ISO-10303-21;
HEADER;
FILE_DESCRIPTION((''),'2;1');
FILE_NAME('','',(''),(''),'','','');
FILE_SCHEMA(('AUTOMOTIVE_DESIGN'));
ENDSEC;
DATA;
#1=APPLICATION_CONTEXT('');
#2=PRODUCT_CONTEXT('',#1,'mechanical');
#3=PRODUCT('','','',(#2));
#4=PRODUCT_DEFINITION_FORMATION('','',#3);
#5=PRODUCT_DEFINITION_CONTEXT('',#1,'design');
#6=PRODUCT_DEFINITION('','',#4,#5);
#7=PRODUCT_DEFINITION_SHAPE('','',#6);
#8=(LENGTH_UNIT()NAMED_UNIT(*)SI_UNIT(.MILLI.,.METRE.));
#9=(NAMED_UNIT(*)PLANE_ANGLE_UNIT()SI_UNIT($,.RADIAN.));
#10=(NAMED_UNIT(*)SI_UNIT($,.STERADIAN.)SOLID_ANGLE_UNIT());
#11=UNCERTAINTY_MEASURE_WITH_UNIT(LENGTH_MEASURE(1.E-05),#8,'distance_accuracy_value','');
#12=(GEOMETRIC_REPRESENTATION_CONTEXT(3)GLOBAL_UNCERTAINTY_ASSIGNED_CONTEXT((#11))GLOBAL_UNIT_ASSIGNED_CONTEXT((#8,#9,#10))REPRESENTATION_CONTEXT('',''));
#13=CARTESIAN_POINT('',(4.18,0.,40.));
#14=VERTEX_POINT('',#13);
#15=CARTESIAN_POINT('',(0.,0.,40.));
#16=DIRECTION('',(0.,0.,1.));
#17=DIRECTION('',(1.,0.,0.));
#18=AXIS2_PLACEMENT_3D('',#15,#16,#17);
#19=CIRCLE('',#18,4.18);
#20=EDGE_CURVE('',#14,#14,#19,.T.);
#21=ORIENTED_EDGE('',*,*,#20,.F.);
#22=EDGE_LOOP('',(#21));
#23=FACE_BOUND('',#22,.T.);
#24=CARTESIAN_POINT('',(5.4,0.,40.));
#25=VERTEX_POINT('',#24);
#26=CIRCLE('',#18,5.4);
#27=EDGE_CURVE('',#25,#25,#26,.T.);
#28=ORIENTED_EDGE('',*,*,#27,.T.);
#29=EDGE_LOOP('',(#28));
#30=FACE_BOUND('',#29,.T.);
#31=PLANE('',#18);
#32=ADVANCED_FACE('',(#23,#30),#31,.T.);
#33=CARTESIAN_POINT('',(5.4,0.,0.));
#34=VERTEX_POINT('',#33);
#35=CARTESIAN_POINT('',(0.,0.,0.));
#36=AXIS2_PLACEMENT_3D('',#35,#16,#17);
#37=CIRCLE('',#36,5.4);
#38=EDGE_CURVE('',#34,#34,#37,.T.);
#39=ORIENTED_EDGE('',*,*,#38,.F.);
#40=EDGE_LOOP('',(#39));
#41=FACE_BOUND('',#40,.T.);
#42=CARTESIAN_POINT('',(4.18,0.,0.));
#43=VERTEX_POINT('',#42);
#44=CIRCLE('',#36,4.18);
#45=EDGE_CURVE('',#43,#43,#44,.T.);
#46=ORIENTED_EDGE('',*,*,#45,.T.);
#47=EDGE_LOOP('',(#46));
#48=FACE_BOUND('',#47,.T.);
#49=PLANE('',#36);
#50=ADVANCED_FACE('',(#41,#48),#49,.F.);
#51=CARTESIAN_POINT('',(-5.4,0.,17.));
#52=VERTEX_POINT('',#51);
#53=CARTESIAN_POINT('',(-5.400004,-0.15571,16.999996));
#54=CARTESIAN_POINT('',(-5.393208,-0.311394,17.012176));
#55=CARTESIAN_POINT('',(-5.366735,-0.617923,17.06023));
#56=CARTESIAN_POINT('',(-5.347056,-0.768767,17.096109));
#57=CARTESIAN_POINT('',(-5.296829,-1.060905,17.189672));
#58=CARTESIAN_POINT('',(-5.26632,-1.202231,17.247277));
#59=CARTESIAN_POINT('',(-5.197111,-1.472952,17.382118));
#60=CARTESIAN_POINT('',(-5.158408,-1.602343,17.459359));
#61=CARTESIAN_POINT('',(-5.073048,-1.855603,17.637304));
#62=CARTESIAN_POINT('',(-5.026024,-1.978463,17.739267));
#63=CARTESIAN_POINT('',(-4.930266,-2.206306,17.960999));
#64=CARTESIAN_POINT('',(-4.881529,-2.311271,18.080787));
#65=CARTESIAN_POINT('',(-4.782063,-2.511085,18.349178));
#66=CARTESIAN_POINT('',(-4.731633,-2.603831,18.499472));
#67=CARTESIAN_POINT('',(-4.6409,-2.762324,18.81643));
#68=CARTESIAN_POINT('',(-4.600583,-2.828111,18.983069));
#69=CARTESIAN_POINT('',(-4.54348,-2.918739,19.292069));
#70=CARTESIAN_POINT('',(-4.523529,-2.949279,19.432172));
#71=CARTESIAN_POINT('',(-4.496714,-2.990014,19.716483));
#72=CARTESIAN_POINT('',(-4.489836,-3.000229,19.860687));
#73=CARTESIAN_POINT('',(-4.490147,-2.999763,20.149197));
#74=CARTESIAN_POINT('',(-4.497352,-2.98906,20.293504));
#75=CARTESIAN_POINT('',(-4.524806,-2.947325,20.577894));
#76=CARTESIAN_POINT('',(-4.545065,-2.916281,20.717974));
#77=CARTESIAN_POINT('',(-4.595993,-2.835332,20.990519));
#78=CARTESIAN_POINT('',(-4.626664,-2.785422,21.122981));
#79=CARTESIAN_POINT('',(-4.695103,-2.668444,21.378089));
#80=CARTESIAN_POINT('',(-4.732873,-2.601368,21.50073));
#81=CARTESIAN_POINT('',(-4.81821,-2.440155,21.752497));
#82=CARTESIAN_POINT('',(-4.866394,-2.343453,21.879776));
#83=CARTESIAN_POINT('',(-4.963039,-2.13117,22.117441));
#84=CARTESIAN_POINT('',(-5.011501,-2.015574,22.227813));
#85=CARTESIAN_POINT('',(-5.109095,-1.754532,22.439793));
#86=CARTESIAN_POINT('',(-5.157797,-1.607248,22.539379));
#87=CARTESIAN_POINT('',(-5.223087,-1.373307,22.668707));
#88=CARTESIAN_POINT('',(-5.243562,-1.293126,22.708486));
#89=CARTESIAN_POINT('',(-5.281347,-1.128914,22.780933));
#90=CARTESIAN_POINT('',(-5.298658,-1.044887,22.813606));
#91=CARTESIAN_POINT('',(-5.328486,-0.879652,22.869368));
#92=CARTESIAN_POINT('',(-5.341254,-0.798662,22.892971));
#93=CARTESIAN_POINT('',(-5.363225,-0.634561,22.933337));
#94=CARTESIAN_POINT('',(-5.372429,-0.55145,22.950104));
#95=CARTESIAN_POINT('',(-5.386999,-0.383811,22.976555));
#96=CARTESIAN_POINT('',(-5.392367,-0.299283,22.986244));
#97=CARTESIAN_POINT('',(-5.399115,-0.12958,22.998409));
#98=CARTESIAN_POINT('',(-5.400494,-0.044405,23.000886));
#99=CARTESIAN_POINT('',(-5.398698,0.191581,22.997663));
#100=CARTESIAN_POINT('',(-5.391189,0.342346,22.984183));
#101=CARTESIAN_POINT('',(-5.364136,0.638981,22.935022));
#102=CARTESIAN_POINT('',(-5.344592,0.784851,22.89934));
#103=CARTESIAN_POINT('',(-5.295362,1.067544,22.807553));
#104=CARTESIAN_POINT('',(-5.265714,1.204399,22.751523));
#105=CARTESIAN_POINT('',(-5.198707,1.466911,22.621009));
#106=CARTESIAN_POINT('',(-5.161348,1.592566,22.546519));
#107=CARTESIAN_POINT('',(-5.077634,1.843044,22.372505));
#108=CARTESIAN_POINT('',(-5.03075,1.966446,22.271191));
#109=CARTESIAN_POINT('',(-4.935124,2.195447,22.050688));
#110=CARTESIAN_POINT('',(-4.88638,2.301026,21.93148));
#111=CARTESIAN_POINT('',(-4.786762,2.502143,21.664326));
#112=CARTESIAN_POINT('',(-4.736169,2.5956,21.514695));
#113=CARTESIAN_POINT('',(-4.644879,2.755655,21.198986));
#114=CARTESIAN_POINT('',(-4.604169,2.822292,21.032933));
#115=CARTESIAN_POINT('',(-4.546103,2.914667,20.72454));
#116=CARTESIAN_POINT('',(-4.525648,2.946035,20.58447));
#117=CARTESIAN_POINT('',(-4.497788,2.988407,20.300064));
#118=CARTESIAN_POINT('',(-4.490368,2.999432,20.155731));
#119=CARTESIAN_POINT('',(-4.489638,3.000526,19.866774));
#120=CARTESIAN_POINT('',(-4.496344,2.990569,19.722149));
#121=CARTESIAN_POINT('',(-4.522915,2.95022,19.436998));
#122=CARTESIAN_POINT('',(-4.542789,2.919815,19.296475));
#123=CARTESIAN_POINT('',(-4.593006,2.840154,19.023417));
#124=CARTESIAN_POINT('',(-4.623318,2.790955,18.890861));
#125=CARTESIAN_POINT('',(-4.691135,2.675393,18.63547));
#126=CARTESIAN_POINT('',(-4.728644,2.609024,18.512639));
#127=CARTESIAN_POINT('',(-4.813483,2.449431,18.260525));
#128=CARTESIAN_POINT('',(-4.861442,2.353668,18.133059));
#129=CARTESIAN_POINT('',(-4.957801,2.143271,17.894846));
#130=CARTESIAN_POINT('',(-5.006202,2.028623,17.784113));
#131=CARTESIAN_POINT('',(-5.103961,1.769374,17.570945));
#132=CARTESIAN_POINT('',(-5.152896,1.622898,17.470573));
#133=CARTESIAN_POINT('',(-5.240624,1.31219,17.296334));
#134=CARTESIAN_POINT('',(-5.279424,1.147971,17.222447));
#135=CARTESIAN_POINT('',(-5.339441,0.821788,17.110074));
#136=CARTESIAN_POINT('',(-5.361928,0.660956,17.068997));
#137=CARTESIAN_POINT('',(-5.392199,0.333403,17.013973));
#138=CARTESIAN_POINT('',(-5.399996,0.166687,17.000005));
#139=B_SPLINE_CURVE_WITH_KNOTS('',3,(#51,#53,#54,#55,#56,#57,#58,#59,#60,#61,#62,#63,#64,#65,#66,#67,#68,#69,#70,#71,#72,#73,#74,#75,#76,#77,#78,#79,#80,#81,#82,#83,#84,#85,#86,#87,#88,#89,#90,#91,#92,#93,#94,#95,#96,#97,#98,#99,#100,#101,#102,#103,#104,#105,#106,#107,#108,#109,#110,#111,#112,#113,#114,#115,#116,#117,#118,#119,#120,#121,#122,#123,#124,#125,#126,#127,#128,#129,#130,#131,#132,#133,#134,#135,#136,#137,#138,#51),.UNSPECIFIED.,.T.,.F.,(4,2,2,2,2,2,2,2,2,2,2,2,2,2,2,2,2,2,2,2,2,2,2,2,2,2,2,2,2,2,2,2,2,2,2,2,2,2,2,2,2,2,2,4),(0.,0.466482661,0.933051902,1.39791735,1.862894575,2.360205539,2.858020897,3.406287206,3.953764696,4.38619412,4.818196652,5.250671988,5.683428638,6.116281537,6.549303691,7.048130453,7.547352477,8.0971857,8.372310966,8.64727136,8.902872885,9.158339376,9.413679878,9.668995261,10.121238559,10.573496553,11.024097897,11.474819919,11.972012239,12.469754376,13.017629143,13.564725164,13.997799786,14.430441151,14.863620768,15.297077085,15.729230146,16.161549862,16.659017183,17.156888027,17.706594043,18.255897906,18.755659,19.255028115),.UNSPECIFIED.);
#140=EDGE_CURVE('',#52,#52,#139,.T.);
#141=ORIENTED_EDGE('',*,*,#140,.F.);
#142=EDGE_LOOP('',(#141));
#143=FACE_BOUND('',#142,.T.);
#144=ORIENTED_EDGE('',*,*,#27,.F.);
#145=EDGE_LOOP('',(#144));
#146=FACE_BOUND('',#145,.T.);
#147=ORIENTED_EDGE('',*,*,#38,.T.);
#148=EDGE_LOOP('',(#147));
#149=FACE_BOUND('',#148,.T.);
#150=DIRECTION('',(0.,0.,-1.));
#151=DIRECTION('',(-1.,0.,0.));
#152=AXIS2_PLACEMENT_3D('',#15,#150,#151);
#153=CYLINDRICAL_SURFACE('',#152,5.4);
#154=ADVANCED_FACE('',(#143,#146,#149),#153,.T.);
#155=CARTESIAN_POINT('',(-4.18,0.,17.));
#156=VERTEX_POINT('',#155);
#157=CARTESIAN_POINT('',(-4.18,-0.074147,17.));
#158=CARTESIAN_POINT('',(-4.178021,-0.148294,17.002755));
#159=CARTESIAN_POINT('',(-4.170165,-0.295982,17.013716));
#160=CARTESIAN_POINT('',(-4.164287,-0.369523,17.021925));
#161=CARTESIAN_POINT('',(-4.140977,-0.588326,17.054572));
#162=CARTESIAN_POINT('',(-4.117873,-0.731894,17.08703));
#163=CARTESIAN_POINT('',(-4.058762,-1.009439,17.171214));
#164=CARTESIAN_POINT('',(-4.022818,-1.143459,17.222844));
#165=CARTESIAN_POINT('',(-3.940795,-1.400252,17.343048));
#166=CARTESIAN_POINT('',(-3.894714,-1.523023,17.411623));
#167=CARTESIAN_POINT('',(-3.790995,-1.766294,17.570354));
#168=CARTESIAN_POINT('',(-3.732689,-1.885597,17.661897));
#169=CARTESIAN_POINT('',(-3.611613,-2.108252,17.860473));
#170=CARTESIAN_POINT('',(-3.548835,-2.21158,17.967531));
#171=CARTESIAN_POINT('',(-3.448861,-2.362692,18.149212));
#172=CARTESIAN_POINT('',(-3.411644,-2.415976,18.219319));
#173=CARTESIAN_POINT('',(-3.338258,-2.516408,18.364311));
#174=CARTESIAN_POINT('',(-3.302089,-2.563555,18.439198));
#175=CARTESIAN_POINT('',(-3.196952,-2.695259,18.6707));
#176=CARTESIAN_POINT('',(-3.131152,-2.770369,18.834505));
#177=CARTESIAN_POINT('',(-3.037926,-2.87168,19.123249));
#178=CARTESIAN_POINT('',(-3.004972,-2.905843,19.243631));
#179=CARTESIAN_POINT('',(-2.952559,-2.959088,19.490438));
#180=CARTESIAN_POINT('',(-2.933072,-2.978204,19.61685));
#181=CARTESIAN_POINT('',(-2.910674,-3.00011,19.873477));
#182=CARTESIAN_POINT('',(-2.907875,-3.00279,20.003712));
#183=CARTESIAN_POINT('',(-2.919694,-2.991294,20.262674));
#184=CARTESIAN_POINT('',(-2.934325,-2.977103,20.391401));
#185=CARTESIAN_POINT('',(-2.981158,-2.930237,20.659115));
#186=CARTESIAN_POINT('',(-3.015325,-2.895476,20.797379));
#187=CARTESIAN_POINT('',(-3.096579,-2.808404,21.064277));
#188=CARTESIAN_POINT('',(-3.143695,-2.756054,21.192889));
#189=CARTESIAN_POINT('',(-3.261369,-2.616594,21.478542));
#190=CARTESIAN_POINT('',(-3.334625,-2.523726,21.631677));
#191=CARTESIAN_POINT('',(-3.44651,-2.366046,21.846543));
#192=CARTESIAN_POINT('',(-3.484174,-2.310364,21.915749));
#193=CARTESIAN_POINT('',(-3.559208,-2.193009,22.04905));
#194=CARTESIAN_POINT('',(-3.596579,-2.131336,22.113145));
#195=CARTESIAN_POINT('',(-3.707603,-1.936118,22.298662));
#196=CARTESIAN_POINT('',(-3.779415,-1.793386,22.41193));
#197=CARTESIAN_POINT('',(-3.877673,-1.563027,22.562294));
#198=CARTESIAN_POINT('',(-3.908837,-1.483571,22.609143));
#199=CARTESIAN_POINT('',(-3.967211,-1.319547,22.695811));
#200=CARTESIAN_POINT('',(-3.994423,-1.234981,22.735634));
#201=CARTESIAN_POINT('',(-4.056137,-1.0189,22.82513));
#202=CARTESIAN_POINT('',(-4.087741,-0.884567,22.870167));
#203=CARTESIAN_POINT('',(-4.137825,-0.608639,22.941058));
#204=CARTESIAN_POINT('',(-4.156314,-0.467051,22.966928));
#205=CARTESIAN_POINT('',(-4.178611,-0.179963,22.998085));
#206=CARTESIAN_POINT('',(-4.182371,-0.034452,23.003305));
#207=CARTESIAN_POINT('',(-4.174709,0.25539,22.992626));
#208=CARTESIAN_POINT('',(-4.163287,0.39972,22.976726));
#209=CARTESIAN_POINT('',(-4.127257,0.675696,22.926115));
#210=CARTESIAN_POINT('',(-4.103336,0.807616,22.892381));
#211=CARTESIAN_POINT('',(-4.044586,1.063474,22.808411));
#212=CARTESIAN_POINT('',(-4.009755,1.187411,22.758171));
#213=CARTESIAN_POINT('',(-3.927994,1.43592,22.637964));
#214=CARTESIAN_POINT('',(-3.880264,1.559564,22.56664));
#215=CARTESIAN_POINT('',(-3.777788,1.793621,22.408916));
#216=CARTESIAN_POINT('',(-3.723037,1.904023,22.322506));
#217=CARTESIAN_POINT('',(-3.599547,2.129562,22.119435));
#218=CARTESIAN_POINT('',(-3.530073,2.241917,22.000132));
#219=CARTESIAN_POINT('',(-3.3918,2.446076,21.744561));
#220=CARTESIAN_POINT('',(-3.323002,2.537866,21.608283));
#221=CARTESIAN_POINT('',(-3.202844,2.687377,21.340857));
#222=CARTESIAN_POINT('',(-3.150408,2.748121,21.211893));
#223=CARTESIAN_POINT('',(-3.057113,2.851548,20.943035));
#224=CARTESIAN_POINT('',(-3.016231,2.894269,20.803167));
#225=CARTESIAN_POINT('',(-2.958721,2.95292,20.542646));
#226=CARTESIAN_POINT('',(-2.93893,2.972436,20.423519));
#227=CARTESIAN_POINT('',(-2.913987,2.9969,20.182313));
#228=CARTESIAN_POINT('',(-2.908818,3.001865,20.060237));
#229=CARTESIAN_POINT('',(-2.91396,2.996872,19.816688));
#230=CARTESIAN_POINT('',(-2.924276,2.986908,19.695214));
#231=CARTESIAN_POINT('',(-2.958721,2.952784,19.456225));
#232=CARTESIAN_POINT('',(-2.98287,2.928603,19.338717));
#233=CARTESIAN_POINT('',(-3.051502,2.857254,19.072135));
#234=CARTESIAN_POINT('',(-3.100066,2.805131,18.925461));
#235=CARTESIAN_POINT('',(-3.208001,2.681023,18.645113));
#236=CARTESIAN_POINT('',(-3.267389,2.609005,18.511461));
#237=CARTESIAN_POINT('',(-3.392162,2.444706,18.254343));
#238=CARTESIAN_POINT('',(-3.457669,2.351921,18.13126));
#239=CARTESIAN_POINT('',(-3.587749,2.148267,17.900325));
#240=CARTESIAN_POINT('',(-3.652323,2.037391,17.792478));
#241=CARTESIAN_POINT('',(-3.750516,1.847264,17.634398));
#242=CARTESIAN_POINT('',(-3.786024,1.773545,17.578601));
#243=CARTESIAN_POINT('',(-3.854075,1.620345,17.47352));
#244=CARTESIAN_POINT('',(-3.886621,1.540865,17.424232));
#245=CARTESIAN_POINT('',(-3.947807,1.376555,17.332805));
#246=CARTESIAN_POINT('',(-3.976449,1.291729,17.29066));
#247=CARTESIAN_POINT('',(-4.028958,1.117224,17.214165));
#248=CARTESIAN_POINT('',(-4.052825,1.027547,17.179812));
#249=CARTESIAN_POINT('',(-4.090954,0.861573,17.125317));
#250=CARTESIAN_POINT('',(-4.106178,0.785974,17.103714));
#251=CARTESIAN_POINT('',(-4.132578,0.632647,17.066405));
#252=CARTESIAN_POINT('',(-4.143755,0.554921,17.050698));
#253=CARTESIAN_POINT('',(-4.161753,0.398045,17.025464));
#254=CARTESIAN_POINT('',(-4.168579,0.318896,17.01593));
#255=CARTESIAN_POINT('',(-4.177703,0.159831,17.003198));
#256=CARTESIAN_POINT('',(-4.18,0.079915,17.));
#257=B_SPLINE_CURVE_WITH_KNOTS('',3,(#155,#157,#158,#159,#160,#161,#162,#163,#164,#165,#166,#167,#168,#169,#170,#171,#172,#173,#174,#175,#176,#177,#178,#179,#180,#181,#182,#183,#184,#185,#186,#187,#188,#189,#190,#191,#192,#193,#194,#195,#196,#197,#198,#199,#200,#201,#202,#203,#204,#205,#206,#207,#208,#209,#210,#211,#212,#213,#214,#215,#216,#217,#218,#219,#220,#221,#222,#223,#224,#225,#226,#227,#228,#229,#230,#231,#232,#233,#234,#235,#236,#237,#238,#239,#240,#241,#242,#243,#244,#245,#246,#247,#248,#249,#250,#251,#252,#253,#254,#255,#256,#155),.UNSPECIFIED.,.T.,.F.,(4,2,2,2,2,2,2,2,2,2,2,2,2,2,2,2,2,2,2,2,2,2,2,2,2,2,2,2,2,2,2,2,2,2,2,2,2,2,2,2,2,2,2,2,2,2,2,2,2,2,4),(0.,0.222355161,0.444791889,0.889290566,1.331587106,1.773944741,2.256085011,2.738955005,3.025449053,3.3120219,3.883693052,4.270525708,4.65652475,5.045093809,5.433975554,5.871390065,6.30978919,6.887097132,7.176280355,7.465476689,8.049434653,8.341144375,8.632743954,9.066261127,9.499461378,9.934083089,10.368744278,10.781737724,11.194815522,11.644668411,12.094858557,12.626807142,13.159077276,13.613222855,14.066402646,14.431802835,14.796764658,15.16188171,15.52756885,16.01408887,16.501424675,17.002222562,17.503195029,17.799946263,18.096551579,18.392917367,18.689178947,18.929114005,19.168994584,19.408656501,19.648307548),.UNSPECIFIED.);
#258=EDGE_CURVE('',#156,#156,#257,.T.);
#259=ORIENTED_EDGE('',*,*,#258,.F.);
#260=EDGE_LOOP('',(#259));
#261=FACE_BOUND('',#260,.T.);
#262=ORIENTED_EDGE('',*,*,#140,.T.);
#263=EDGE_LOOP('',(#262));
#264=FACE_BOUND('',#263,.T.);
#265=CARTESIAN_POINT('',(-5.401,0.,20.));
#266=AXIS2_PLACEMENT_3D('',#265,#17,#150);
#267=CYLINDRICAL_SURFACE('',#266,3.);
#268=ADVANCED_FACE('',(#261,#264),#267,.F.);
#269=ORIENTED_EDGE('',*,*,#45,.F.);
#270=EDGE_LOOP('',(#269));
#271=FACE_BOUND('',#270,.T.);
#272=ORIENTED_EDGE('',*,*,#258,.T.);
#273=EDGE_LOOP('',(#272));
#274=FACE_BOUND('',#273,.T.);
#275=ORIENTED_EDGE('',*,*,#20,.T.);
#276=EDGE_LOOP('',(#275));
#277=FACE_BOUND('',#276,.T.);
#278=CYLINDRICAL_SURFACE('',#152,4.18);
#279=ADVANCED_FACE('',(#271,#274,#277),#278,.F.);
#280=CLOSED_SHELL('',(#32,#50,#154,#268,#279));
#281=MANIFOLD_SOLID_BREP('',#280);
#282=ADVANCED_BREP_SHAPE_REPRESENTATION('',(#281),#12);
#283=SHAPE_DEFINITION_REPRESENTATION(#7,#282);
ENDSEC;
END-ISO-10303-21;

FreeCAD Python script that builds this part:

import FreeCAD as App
import Part
import Sketcher
from FreeCAD import Vector
Q = App.Units.Quantity

doc = App.newDocument("Part")
params = doc.addObject("Spreadsheet::Sheet", "Params")
for row, (alias, value) in enumerate([
    ("sketch1_diameter", "10.8 mm"),
    ("sketch1_diameter2", "8.36 mm"),
    ("pad1_length", "40 mm"),
    ("sketch2_diameter", "6 mm"),
    ("pocket1_length", "5.4 mm"),
], start=1):
    params.set(f"A{row}", alias)
    params.set(f"B{row}", "=" + value)
    params.setAlias(f"B{row}", alias)

body = doc.addObject("PartDesign::Body", "Body")

# Sketch on XY plane
sketch1 = doc.addObject("Sketcher::SketchObject", "Sketch")
body.addObject(sketch1)
sketch1.AttachmentSupport = (doc.XY_Plane, [""])
sketch1.MapMode = "FlatFace"
sketch1.addGeometry(Part.Circle(Vector(0, 0, 0), Vector(0, 0, 1), 5.4), False)
sketch1.addGeometry(Part.Circle(Vector(0, 0, 0), Vector(0, 0, 1), 4.2), False)
sketch1.addConstraint(Sketcher.Constraint("Coincident", 0, 3, -1, 1))
sketch1.addConstraint(Sketcher.Constraint("Coincident", 1, 3, -1, 1))
sketch1.addConstraint(Sketcher.Constraint("Diameter", 0, Q("10.8 mm")))
sketch1.addConstraint(Sketcher.Constraint("Diameter", 1, Q("8.36 mm")))
sketch1.setExpression("Constraints[2]", "Params.sketch1_diameter")
sketch1.setExpression("Constraints[3]", "Params.sketch1_diameter2")
pad1 = doc.addObject("PartDesign::Pad", "Pad")
body.addObject(pad1)
pad1.Profile = sketch1
pad1.setExpression("Length", "Params.pad1_length")

# Sketch on YZ plane
sketch2 = doc.addObject("Sketcher::SketchObject", "Sketch001")
body.addObject(sketch2)
sketch2.AttachmentSupport = (doc.YZ_Plane, [""])
sketch2.MapMode = "FlatFace"
sketch2.addGeometry(Part.Circle(Vector(0, 20, 0), Vector(0, 0, 1), 3), False)
sketch2.addConstraint(Sketcher.Constraint("PointOnObject", 0, 3, -2))
sketch2.addConstraint(Sketcher.Constraint("Diameter", 0, Q("6 mm")))
sketch2.addConstraint(Sketcher.Constraint("DistanceY", -1, 1, 0, 3, Q("20 mm")))
sketch2.setExpression("Constraints[1]", "Params.sketch2_diameter")
pocket1 = doc.addObject("PartDesign::Pocket", "Pocket")
body.addObject(pocket1)
pocket1.Profile = sketch2
pocket1.setExpression("Length", "Params.pocket1_length")

doc.recompute()
